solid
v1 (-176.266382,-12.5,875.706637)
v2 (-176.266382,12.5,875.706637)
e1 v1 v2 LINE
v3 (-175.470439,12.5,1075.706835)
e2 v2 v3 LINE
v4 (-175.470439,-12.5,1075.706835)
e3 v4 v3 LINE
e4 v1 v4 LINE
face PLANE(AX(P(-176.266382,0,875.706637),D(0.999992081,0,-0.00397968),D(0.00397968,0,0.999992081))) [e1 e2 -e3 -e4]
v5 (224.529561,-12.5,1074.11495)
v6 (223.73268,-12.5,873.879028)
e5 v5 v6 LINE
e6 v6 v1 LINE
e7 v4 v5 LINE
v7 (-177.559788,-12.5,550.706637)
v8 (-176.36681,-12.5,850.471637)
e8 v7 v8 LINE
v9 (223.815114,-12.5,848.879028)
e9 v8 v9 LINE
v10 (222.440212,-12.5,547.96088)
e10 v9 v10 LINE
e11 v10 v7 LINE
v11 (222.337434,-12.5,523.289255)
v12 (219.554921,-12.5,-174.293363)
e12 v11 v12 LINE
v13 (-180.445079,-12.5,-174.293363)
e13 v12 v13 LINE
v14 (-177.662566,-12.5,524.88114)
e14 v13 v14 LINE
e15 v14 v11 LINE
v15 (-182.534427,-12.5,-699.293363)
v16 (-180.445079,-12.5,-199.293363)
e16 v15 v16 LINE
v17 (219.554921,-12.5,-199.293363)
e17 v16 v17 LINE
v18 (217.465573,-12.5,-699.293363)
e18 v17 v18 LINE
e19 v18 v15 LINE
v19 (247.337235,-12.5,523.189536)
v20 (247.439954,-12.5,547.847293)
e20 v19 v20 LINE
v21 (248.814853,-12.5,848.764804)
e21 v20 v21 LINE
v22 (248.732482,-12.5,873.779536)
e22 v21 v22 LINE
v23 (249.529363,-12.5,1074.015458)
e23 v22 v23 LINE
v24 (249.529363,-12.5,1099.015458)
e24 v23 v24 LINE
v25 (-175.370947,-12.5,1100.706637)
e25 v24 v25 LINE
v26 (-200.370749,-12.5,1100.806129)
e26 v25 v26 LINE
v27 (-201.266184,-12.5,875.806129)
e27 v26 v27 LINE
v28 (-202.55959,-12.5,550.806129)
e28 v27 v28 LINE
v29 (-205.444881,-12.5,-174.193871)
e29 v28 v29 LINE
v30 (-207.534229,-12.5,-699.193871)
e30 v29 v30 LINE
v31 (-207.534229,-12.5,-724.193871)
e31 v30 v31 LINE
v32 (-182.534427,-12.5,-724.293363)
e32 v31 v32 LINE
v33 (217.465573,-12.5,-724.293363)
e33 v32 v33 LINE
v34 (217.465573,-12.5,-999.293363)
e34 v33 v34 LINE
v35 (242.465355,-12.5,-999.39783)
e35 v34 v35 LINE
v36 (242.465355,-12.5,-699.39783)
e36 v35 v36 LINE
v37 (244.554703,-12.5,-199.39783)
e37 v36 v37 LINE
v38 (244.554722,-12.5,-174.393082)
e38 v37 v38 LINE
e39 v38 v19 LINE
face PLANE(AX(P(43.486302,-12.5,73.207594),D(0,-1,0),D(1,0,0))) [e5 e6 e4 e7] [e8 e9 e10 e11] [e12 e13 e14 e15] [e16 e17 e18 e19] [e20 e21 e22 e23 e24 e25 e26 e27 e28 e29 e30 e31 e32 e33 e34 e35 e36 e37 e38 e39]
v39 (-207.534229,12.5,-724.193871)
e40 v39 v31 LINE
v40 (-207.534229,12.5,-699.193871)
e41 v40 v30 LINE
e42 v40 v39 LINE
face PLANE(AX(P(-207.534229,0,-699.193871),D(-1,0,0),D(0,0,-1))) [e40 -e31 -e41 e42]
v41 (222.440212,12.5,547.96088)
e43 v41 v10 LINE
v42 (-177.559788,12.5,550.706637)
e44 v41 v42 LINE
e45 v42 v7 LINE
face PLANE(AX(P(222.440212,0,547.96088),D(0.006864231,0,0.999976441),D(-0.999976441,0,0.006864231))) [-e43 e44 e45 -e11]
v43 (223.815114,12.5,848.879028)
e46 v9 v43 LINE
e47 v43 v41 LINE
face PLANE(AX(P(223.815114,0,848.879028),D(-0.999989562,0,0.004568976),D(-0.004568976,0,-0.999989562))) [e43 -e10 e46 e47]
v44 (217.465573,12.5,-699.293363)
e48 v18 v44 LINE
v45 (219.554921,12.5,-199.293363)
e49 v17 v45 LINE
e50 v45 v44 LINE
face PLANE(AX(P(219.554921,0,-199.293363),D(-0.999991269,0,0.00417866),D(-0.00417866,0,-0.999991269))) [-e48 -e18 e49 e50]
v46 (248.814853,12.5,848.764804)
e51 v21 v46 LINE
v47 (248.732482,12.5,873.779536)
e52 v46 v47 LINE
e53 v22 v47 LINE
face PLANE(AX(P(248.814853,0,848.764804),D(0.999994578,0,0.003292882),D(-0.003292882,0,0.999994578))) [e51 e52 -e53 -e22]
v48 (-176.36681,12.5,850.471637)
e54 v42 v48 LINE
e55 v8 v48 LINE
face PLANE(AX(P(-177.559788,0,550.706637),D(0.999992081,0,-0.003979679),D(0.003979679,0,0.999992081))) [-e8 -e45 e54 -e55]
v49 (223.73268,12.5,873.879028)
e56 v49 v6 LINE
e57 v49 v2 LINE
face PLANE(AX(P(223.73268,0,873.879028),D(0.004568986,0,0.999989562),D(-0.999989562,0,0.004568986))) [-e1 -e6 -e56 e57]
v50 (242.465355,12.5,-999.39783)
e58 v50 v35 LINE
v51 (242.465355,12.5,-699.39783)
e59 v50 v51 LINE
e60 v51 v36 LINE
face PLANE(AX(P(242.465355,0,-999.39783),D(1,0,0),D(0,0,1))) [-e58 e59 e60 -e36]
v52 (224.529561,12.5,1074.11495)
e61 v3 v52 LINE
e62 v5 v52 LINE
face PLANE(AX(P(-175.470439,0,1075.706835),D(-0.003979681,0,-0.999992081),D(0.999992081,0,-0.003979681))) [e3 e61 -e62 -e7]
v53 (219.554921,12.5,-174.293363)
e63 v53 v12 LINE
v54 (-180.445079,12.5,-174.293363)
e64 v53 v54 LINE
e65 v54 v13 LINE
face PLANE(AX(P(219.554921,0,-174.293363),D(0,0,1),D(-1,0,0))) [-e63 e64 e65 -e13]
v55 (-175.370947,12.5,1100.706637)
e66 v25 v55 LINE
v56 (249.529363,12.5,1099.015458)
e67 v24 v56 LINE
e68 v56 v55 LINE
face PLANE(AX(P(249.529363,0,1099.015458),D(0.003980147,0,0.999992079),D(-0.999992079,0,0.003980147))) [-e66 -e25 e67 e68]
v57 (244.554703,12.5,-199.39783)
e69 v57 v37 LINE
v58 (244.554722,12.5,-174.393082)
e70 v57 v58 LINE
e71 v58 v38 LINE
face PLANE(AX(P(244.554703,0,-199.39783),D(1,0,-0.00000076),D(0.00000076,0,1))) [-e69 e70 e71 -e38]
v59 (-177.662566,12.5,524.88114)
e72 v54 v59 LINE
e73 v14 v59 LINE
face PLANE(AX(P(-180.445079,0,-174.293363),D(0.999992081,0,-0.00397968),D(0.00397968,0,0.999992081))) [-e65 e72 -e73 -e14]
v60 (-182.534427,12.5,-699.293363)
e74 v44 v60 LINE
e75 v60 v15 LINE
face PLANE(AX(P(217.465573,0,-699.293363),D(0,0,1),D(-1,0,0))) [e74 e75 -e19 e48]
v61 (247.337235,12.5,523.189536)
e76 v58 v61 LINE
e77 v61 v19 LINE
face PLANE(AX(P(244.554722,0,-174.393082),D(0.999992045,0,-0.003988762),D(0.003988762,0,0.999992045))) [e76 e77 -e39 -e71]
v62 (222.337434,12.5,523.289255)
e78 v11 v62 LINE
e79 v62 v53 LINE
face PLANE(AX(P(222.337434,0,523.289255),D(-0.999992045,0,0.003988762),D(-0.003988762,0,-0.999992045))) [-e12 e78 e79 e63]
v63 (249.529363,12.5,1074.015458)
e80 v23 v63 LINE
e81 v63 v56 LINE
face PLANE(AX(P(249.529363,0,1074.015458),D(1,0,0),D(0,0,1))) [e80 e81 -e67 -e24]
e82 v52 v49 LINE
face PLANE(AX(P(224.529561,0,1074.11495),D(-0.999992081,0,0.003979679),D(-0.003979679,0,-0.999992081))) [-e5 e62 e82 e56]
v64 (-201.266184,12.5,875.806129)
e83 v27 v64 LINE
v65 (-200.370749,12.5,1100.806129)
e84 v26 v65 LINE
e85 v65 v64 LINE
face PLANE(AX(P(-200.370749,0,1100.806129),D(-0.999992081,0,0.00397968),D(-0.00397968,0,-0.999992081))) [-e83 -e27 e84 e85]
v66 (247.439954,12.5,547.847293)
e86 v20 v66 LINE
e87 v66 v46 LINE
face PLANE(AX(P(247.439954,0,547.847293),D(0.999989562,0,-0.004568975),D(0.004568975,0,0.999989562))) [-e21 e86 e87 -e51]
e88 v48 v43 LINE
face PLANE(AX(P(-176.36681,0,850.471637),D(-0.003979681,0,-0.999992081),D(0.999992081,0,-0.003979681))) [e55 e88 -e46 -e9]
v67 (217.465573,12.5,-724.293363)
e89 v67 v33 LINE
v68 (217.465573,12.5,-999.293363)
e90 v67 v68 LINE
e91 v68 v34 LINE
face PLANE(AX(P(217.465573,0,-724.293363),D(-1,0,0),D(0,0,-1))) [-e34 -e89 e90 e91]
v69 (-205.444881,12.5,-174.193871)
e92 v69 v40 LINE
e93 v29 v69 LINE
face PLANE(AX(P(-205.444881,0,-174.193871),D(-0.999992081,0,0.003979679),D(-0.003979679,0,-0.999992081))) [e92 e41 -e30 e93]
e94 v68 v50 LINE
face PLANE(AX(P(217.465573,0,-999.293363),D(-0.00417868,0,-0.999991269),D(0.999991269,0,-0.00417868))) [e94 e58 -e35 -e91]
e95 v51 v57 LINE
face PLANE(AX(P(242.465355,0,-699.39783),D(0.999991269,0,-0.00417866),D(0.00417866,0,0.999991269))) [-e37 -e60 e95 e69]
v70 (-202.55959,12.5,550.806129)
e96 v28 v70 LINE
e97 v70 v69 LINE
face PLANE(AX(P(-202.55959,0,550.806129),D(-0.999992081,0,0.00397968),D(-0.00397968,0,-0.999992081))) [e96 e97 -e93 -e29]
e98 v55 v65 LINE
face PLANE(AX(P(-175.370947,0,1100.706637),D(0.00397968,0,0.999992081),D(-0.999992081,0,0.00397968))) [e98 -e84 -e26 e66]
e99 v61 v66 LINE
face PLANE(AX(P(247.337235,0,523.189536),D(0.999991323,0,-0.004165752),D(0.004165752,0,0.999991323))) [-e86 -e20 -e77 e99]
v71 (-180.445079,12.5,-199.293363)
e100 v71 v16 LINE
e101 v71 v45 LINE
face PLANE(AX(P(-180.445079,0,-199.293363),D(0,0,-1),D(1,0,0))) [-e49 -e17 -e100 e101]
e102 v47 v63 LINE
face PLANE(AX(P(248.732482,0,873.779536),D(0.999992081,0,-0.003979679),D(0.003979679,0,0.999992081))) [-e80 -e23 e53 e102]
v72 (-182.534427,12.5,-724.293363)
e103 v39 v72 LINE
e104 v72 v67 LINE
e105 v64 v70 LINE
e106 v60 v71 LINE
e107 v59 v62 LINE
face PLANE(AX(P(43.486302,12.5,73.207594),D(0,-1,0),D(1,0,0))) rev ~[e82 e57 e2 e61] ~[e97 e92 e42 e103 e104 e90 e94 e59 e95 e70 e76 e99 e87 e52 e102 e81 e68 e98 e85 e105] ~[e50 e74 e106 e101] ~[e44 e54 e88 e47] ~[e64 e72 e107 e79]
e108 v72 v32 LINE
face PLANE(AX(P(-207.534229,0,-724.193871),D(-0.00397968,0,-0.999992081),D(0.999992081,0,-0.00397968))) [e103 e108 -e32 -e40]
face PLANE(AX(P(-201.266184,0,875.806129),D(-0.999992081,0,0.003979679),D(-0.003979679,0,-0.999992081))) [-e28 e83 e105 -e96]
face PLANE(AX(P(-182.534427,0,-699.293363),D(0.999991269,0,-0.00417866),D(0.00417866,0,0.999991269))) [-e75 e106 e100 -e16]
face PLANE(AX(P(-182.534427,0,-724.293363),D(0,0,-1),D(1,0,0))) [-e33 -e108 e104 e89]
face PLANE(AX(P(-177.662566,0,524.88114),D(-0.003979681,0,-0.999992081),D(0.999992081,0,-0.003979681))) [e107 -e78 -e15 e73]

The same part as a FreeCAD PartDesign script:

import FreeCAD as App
import Part
import Sketcher

V = App.Vector
Q = App.Units.Quantity

doc = App.newDocument("Part")
params = doc.addObject("Spreadsheet::Sheet", "Params")
for row, (alias, value) in enumerate([
    ("sketch1_width", "400 mm"),
    ("sketch1_width2", "400 mm"),
    ("sketch1_width3", "400 mm"),
    ("sketch1_width4", "400 mm"),
    ("sketch1_height", "25 mm"),
    ("pad1_length", "25 mm"),
], start=1):
    params.set(f"A{row}", alias)
    params.set(f"B{row}", "=" + value)
    params.setAlias(f"B{row}", alias)

body = doc.addObject("PartDesign::Body", "Body")

# Sketch on XZ plane
sketch1 = body.newObject("Sketcher::SketchObject", "Sketch")
sketch1.AttachmentSupport = (doc.getObject("XZ_Plane"), [""])
sketch1.MapMode = "FlatFace"
sketch1.addGeometry(Part.LineSegment(V(-205.444881, -174.193871, 0), V(-207.534229, -699.193871, 0)), False)
sketch1.addGeometry(Part.LineSegment(V(-207.534229, -699.193871, 0), V(-207.534229, -724.193871, 0)), False)
sketch1.addGeometry(Part.LineSegment(V(-207.534229, -724.193871, 0), V(-182.534427, -724.293363, 0)), False)
sketch1.addGeometry(Part.LineSegment(V(-182.534427, -724.293363, 0), V(217.465573, -724.293363, 0)), False)
sketch1.addGeometry(Part.LineSegment(V(217.465573, -724.293363, 0), V(217.465573, -999.293363, 0)), False)
sketch1.addGeometry(Part.LineSegment(V(217.465573, -999.293363, 0), V(242.465355, -999.39783, 0)), False)
sketch1.addGeometry(Part.LineSegment(V(242.465355, -999.39783, 0), V(242.465355, -699.39783, 0)), False)
sketch1.addGeometry(Part.LineSegment(V(242.465355, -699.39783, 0), V(244.554703, -199.39783, 0)), False)
sketch1.addGeometry(Part.LineSegment(V(244.554703, -199.39783, 0), V(244.554722, -174.393082, 0)), False)
sketch1.addGeometry(Part.LineSegment(V(244.554722, -174.393082, 0), V(247.337235, 523.189536, 0)), False)
sketch1.addGeometry(Part.LineSegment(V(247.337235, 523.189536, 0), V(247.439954, 547.847293, 0)), False)
sketch1.addGeometry(Part.LineSegment(V(247.439954, 547.847293, 0), V(248.814853, 848.764804, 0)), False)
sketch1.addGeometry(Part.LineSegment(V(248.814853, 848.764804, 0), V(248.732482, 873.779536, 0)), False)
sketch1.addGeometry(Part.LineSegment(V(248.732482, 873.779536, 0), V(249.529363, 1074.015458, 0)), False)
sketch1.addGeometry(Part.LineSegment(V(249.529363, 1074.015458, 0), V(249.529363, 1099.015458, 0)), False)
sketch1.addGeometry(Part.LineSegment(V(249.529363, 1099.015458, 0), V(-175.370947, 1100.706637, 0)), False)
sketch1.addGeometry(Part.LineSegment(V(-175.370947, 1100.706637, 0), V(-200.370749, 1100.806129, 0)), False)
sketch1.addGeometry(Part.LineSegment(V(-200.370749, 1100.806129, 0), V(-201.266184, 875.806129, 0)), False)
sketch1.addGeometry(Part.LineSegment(V(-201.266184, 875.806129, 0), V(-202.55959, 550.806129, 0)), False)
sketch1.addGeometry(Part.LineSegment(V(-202.55959, 550.806129, 0), V(-205.444881, -174.193871, 0)), False)
sketch1.addGeometry(Part.LineSegment(V(217.465573, -699.293363, 0), V(-182.534427, -699.293363, 0)), False)
sketch1.addGeometry(Part.LineSegment(V(-182.534427, -699.293363, 0), V(-180.445079, -199.293363, 0)), False)
sketch1.addGeometry(Part.LineSegment(V(-180.445079, -199.293363, 0), V(219.554921, -199.293363, 0)), False)
sketch1.addGeometry(Part.LineSegment(V(219.554921, -199.293363, 0), V(217.465573, -699.293363, 0)), False)
sketch1.addGeometry(Part.LineSegment(V(222.337434, 523.289255, 0), V(219.554921, -174.293363, 0)), False)
sketch1.addGeometry(Part.LineSegment(V(219.554921, -174.293363, 0), V(-180.445079, -174.293363, 0)), False)
sketch1.addGeometry(Part.LineSegment(V(-180.445079, -174.293363, 0), V(-177.662566, 524.88114, 0)), False)
sketch1.addGeometry(Part.LineSegment(V(-177.662566, 524.88114, 0), V(222.337434, 523.289255, 0)), False)
sketch1.addGeometry(Part.LineSegment(V(223.815114, 848.879028, 0), V(222.440212, 547.96088, 0)), False)
sketch1.addGeometry(Part.LineSegment(V(222.440212, 547.96088, 0), V(-177.559788, 550.706637, 0)), False)
sketch1.addGeometry(Part.LineSegment(V(-177.559788, 550.706637, 0), V(-176.36681, 850.471637, 0)), False)
sketch1.addGeometry(Part.LineSegment(V(-176.36681, 850.471637, 0), V(223.815114, 848.879028, 0)), False)
sketch1.addGeometry(Part.LineSegment(V(224.529561, 1074.11495, 0), V(223.73268, 873.879028, 0)), False)
sketch1.addGeometry(Part.LineSegment(V(223.73268, 873.879028, 0), V(-176.266382, 875.706637, 0)), False)
sketch1.addGeometry(Part.LineSegment(V(-176.266382, 875.706637, 0), V(-175.470439, 1075.706835, 0)), False)
sketch1.addGeometry(Part.LineSegment(V(-175.470439, 1075.706835, 0), V(224.529561, 1074.11495, 0)), False)
sketch1.addConstraint(Sketcher.Constraint("Coincident", 0, 2, 1, 1))
sketch1.addConstraint(Sketcher.Constraint("Coincident", 1, 2, 2, 1))
sketch1.addConstraint(Sketcher.Constraint("Coincident", 2, 2, 3, 1))
sketch1.addConstraint(Sketcher.Constraint("Coincident", 3, 2, 4, 1))
sketch1.addConstraint(Sketcher.Constraint("Coincident", 4, 2, 5, 1))
sketch1.addConstraint(Sketcher.Constraint("Coincident", 5, 2, 6, 1))
sketch1.addConstraint(Sketcher.Constraint("Coincident", 6, 2, 7, 1))
sketch1.addConstraint(Sketcher.Constraint("Coincident", 7, 2, 8, 1))
sketch1.addConstraint(Sketcher.Constraint("Coincident", 8, 2, 9, 1))
sketch1.addConstraint(Sketcher.Constraint("Coincident", 9, 2, 10, 1))
sketch1.addConstraint(Sketcher.Constraint("Coincident", 10, 2, 11, 1))
sketch1.addConstraint(Sketcher.Constraint("Coincident", 11, 2, 12, 1))
sketch1.addConstraint(Sketcher.Constraint("Coincident", 12, 2, 13, 1))
sketch1.addConstraint(Sketcher.Constraint("Coincident", 13, 2, 14, 1))
sketch1.addConstraint(Sketcher.Constraint("Coincident", 14, 2, 15, 1))
sketch1.addConstraint(Sketcher.Constraint("Coincident", 15, 2, 16, 1))
sketch1.addConstraint(Sketcher.Constraint("Coincident", 16, 2, 17, 1))
sketch1.addConstraint(Sketcher.Constraint("Coincident", 17, 2, 18, 1))
sketch1.addConstraint(Sketcher.Constraint("Coincident", 18, 2, 19, 1))
sketch1.addConstraint(Sketcher.Constraint("Coincident", 19, 2, 0, 1))
sketch1.addConstraint(Sketcher.Constraint("Coincident", 20, 2, 21, 1))
sketch1.addConstraint(Sketcher.Constraint("Coincident", 21, 2, 22, 1))
sketch1.addConstraint(Sketcher.Constraint("Coincident", 22, 2, 23, 1))
sketch1.addConstraint(Sketcher.Constraint("Coincident", 23, 2, 20, 1))
sketch1.addConstraint(Sketcher.Constraint("Coincident", 24, 2, 25, 1))
sketch1.addConstraint(Sketcher.Constraint("Coincident", 25, 2, 26, 1))
sketch1.addConstraint(Sketcher.Constraint("Coincident", 26, 2, 27, 1))
sketch1.addConstraint(Sketcher.Constraint("Coincident", 27, 2, 24, 1))
sketch1.addConstraint(Sketcher.Constraint("Coincident", 28, 2, 29, 1))
sketch1.addConstraint(Sketcher.Constraint("Coincident", 29, 2, 30, 1))
sketch1.addConstraint(Sketcher.Constraint("Coincident", 30, 2, 31, 1))
sketch1.addConstraint(Sketcher.Constraint("Coincident", 31, 2, 28, 1))
sketch1.addConstraint(Sketcher.Constraint("Coincident", 32, 2, 33, 1))
sketch1.addConstraint(Sketcher.Constraint("Coincident", 33, 2, 34, 1))
sketch1.addConstraint(Sketcher.Constraint("Coincident", 34, 2, 35, 1))
sketch1.addConstraint(Sketcher.Constraint("Coincident", 35, 2, 32, 1))
sketch1.addConstraint(Sketcher.Constraint("Vertical", 1))
sketch1.addConstraint(Sketcher.Constraint("Horizontal", 3))
sketch1.addConstraint(Sketcher.Constraint("Vertical", 4))
sketch1.addConstraint(Sketcher.Constraint("Vertical", 6))
sketch1.addConstraint(Sketcher.Constraint("Vertical", 14))
sketch1.addConstraint(Sketcher.Constraint("Horizontal", 20))
sketch1.addConstraint(Sketcher.Constraint("Horizontal", 22))
sketch1.addConstraint(Sketcher.Constraint("Horizontal", 25))
sketch1.addConstraint(Sketcher.Constraint("DistanceX", 3, 1, 3, 2, Q("400 mm")))
sketch1.addConstraint(Sketcher.Constraint("DistanceX", 20, 2, 20, 1, Q("400 mm")))
sketch1.addConstraint(Sketcher.Constraint("DistanceX", 22, 1, 22, 2, Q("400 mm")))
sketch1.addConstraint(Sketcher.Constraint("DistanceX", 25, 2, 25, 1, Q("400 mm")))
sketch1.addConstraint(Sketcher.Constraint("DistanceY", 1, 2, 1, 1, Q("25 mm")))
sketch1.addConstraint(Sketcher.Constraint("DistanceY", 4, 2, 4, 1, Q("275 mm")))
sketch1.addConstraint(Sketcher.Constraint("DistanceY", 6, 1, 6, 2, Q("300 mm")))
sketch1.addConstraint(Sketcher.Constraint("DistanceY", 14, 1, 14, 2, Q("25 mm")))
sketch1.addConstraint(Sketcher.Constraint("Distance", 2, Q("25 mm")))
sketch1.addConstraint(Sketcher.Constraint("Distance", 5, Q("25 mm")))
sketch1.addConstraint(Sketcher.Constraint("Distance", 16, Q("25 mm")))
sketch1.addConstraint(Sketcher.Constraint("DistanceY", 6, 2, 7, 2, Q("500 mm")))
sketch1.addConstraint(Sketcher.Constraint("DistanceY", 17, 2, 16, 2, Q("225 mm")))
sketch1.addConstraint(Sketcher.Constraint("DistanceY", 18, 2, 17, 2, Q("325 mm")))
sketch1.addConstraint(Sketcher.Constraint("DistanceY", 0, 2, 19, 2, Q("525 mm")))
sketch1.addConstraint(Sketcher.Constraint("DistanceY", 2, 2, 20, 2, Q("25 mm")))
sketch1.addConstraint(Sketcher.Constraint("DistanceX", 20, 2, 3, 2, Q("400 mm")))
sketch1.addConstraint(Sketcher.Constraint("DistanceY", 20, 2, 21, 2, Q("500 mm")))
sketch1.addConstraint(Sketcher.Constraint("DistanceY", 22, 2, 24, 2, Q("25 mm")))
sketch1.addConstraint(Sketcher.Constraint("DistanceX", 21, 2, 24, 2, Q("400 mm")))
sketch1.addConstraint(Sketcher.Constraint("DistanceX", 26, 2, 27, 2, Q("400 mm")))
sketch1.addConstraint(Sketcher.Constraint("DistanceX", 29, 2, 28, 2, Q("400 mm")))
sketch1.addConstraint(Sketcher.Constraint("DistanceY", 31, 2, 32, 2, Q("25 mm")))
sketch1.addConstraint(Sketcher.Constraint("DistanceY", 33, 2, 15, 2, Q("225 mm")))
sketch1.addConstraint(Sketcher.Constraint("DistanceY", 29, 2, 33, 2, Q("325 mm")))
sketch1.addConstraint(Sketcher.Constraint("DistanceY", 9, 2, 12, 2, Q("350.59 mm")))
sketch1.addConstraint(Sketcher.Constraint("DistanceY", 30, 2, 15, 2, Q("250.235 mm")))
sketch1.addConstraint(Sketcher.Constraint("DistanceY", 3, 2, 9, 2, Q("1247.482899 mm")))
sketch1.addConstraint(Sketcher.Constraint("DistanceX", 6, 2, 10, 2, Q("4.974599 mm")))
sketch1.addConstraint(Sketcher.Constraint("DistanceX", 10, 2, 11, 2, Q("1.374899 mm")))
sketch1.addConstraint(Sketcher.Constraint("DistanceY", 12, 2, 15, 2, Q("226.927101 mm")))
sketch1.addConstraint(Sketcher.Constraint("DistanceX", 15, 2, 11, 2, Q("424.1858 mm")))
sketch1.addConstraint(Sketcher.Constraint("DistanceX", 21, 2, 8, 2, Q("424.999801 mm")))
sketch1.addConstraint(Sketcher.Constraint("DistanceX", 26, 2, 9, 2, Q("424.999801 mm")))
sketch1.addConstraint(Sketcher.Constraint("DistanceX", 18, 2, 29, 2, Q("24.999802 mm")))
sketch1.addConstraint(Sketcher.Constraint("DistanceX", 28, 2, 31, 2, Q("1.374902 mm")))
sketch1.addConstraint(Sketcher.Constraint("DistanceX", 35, 2, 13, 2, Q("24.999802 mm")))
sketch1.addConstraint(Sketcher.Constraint("Distance", 8, Q("25.004748 mm")))
sketch1.addConstraint(Sketcher.Constraint("Distance", 10, Q("24.657971 mm")))
sketch1.addConstraint(Sketcher.Constraint("Distance", 11, Q("300.920652 mm")))
sketch1.addConstraint(Sketcher.Constraint("Distance", 17, Q("225.001782 mm")))
sketch1.addConstraint(Sketcher.Constraint("Distance", 19, Q("725.005741 mm")))
sketch1.addConstraint(Sketcher.Constraint("Distance", 26, Q("699.18004 mm")))
sketch1.addConstraint(Sketcher.Constraint("Distance", 28, Q("300.921289 mm")))
sketch1.addConstraint(Sketcher.Constraint("Distance", 34, Q("200.001782 mm")))
sketch1.addConstraint(Sketcher.Constraint("DistanceX", 0, 2, -1, 1, Q("207.534229 mm")))
sketch1.addConstraint(Sketcher.Constraint("DistanceY", 0, 2, -1, 1, Q("699.193871 mm")))
sketch1.addConstraint(Sketcher.Constraint("DistanceY", 5, 2, -1, 1, Q("999.39783 mm")))
sketch1.addConstraint(Sketcher.Constraint("DistanceX", -1, 1, 8, 2, Q("244.554722 mm")))
sketch1.addConstraint(Sketcher.Constraint("DistanceX", -1, 1, 12, 2, Q("248.732482 mm")))
sketch1.addConstraint(Sketcher.Constraint("DistanceY", -1, 1, 13, 2, Q("1074.015458 mm")))
sketch1.addConstraint(Sketcher.Constraint("DistanceY", -1, 1, 16, 2, Q("1100.806129 mm")))
sketch1.addConstraint(Sketcher.Constraint("DistanceX", 18, 2, -1, 1, Q("202.55959 mm")))
sketch1.addConstraint(Sketcher.Constraint("DistanceY", -1, 1, 26, 2, Q("524.88114 mm")))
sketch1.addConstraint(Sketcher.Constraint("DistanceY", -1, 1, 28, 2, Q("547.96088 mm")))
sketch1.addConstraint(Sketcher.Constraint("DistanceX", 30, 2, -1, 1, Q("176.36681 mm")))
sketch1.addConstraint(Sketcher.Constraint("DistanceX", -1, 1, 32, 2, Q("223.73268 mm")))
sketch1.addConstraint(Sketcher.Constraint("DistanceX", 33, 2, -1, 1, Q("176.266382 mm")))
sketch1.addConstraint(Sketcher.Constraint("DistanceX", 34, 2, -1, 1, Q("175.470439 mm")))
sketch1.addConstraint(Sketcher.Constraint("DistanceX", -1, 1, 35, 2, Q("224.529561 mm")))
sketch1.addConstraint(Sketcher.Constraint("DistanceY", -1, 1, 35, 2, Q("1074.11495 mm")))
sketch1.addConstraint(Sketcher.Constraint("DistanceX", 6, 2, 7, 2, Q("2.089348 mm")))
sketch1.addConstraint(Sketcher.Constraint("DistanceX", 6, 2, 9, 2, Q("4.87188 mm")))
sketch1.addConstraint(Sketcher.Constraint("DistanceY", 9, 2, 27, 2, Q("0.099719 mm")))
sketch1.setExpression("Constraints[44]", "Params.sketch1_width")
sketch1.setExpression("Constraints[45]", "Params.sketch1_width2")
sketch1.setExpression("Constraints[46]", "Params.sketch1_width3")
sketch1.setExpression("Constraints[47]", "Params.sketch1_width4")
sketch1.setExpression("Constraints[48]", "Params.sketch1_height")
pad1 = body.newObject("PartDesign::Pad", "Pad")
pad1.Profile = sketch1
pad1.setExpression("Length", "Params.pad1_length")
pad1.Midplane = True

doc.recompute()
